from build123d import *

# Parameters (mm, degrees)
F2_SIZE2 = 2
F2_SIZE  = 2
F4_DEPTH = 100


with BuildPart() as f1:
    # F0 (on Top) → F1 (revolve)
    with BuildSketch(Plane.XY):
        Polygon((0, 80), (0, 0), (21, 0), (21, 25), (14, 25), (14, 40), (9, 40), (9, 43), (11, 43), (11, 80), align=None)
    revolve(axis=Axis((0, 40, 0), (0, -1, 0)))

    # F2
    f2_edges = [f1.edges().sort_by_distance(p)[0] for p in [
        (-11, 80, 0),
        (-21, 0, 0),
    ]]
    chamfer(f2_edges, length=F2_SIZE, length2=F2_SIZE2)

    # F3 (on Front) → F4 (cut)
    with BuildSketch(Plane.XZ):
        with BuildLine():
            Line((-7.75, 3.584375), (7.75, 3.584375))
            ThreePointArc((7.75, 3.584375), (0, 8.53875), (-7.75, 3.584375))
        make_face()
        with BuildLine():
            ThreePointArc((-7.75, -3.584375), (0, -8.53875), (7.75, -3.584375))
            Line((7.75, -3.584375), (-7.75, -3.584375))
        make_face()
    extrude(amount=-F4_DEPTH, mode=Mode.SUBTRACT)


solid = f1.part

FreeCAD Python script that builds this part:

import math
import FreeCAD as App
import Part
import Sketcher

V = App.Vector
Q = App.Units.Quantity


def edges_at(feature, points):
    """Names of the edges that pass closest to the given points."""
    edges = feature.Shape.Edges
    near = lambda p: min(range(len(edges)), key=lambda i: edges[i].distToShape(Part.Vertex(*p))[0])
    return sorted({f"Edge{near(p) + 1}" for p in points})

doc = App.newDocument("Part")
body = doc.addObject("PartDesign::Body", "Body")

# Sketch on XY plane
sketch1 = body.newObject("Sketcher::SketchObject", "Sketch")
sketch1.AttachmentSupport = (doc.getObject("XY_Plane"), [""])
sketch1.MapMode = "FlatFace"
sketch1.addGeometry([
    Part.LineSegment(V(0, 80, 0), V(0, 0, 0)),  # 0
    Part.LineSegment(V(0, 0, 0), V(21, 0, 0)),  # 1
    Part.LineSegment(V(21, 0, 0), V(21, 25, 0)),  # 2
    Part.LineSegment(V(21, 25, 0), V(14, 25, 0)),  # 3
    Part.LineSegment(V(14, 25, 0), V(14, 40, 0)),  # 4
    Part.LineSegment(V(14, 40, 0), V(9, 40, 0)),  # 5
    Part.LineSegment(V(9, 40, 0), V(9, 43, 0)),  # 6
    Part.LineSegment(V(9, 43, 0), V(11, 43, 0)),  # 7
    Part.LineSegment(V(11, 43, 0), V(11, 80, 0)),  # 8
    Part.LineSegment(V(11, 80, 0), V(0, 80, 0)),  # 9
], False)
sketch1.addConstraint([
    Sketcher.Constraint("Coincident", 0, 2, 1, 1),
    Sketcher.Constraint("Coincident", 1, 2, 2, 1),
    Sketcher.Constraint("Coincident", 2, 2, 3, 1),
    Sketcher.Constraint("Coincident", 3, 2, 4, 1),
    Sketcher.Constraint("Coincident", 4, 2, 5, 1),
    Sketcher.Constraint("Coincident", 5, 2, 6, 1),
    Sketcher.Constraint("Coincident", 6, 2, 7, 1),
    Sketcher.Constraint("Coincident", 7, 2, 8, 1),
    Sketcher.Constraint("Coincident", 8, 2, 9, 1),
    Sketcher.Constraint("Coincident", 9, 2, 0, 1),
    Sketcher.Constraint("Vertical", 0),
    Sketcher.Constraint("Horizontal", 1),
    Sketcher.Constraint("Vertical", 2),
    Sketcher.Constraint("Horizontal", 3),
    Sketcher.Constraint("Vertical", 4),
    Sketcher.Constraint("Horizontal", 5),
    Sketcher.Constraint("Vertical", 6),
    Sketcher.Constraint("Horizontal", 7),
    Sketcher.Constraint("Vertical", 8),
    Sketcher.Constraint("Horizontal", 9),
    Sketcher.Constraint("Coincident", 0, 2, -1, 1),
    Sketcher.Constraint("DistanceX", 1, 1, 1, 2, Q("21 mm")),
    Sketcher.Constraint("DistanceX", 3, 2, 3, 1, Q("7 mm")),
    Sketcher.Constraint("DistanceX", 5, 2, 5, 1, Q("5 mm")),
    Sketcher.Constraint("DistanceX", 7, 1, 7, 2, Q("2 mm")),
    Sketcher.Constraint("DistanceY", 0, 2, 0, 1, Q("80 mm")),
    Sketcher.Constraint("DistanceY", 2, 1, 2, 2, Q("25 mm")),
    Sketcher.Constraint("DistanceY", 4, 1, 4, 2, Q("15 mm")),
    Sketcher.Constraint("DistanceY", 6, 1, 6, 2, Q("3 mm")),
])
revolution = body.newObject("PartDesign::Revolution", "Revolution")
revolution.Profile = sketch1
revolution.ReferenceAxis = (sketch1, ["V_Axis"])
revolution.Angle = 360
doc.recompute()

chamfer = body.newObject("PartDesign::Chamfer", "Chamfer")
chamfer.Base = (revolution, edges_at(revolution, [(-11, 80, 0), (-21, 0, 0)]))
chamfer.ChamferType = "Two distances"
chamfer.Size = 2
chamfer.Size2 = 2

# Sketch on XZ plane
sketch2 = body.newObject("Sketcher::SketchObject", "Sketch001")
sketch2.AttachmentSupport = (doc.getObject("XZ_Plane"), [""])
sketch2.MapMode = "FlatFace"
sketch2.addGeometry([
    Part.LineSegment(V(-7.75, 3.584375, 0), V(7.75, 3.584375, 0)),
    Part.ArcOfCircle(Part.Circle(V(0, 0.000001, 0), V(0, 0, 1), 8.538749), math.radians(24.820537), math.radians(155.179463)),
    Part.ArcOfCircle(Part.Circle(V(0, -0.000001, 0), V(0, 0, 1), 8.538749), math.radians(-155.179463), math.radians(-24.820537)),
    Part.LineSegment(V(7.75, -3.584375, 0), V(-7.75, -3.584375, 0)),
], False)
sketch2.addConstraint([
    Sketcher.Constraint("Coincident", 0, 1, 1, 2),
    Sketcher.Constraint("Coincident", 1, 1, 0, 2),
    Sketcher.Constraint("Coincident", 2, 1, 3, 2),
    Sketcher.Constraint("Coincident", 3, 1, 2, 2),
    Sketcher.Constraint("Horizontal", 0),
    Sketcher.Constraint("Horizontal", 3),
    Sketcher.Constraint("Coincident", 1, 3, -1, 1),
    Sketcher.Constraint("Coincident", 2, 3, -1, 1),
    Sketcher.Constraint("Equal", 1, 2),
    Sketcher.Constraint("Vertical", 0, 1, 2, 1),
    Sketcher.Constraint("DistanceX", 0, 1, 0, 2, Q("15.5 mm")),
    Sketcher.Constraint("Radius", 1, Q("8.538749 mm")),
])
pocket1 = body.newObject("PartDesign::Pocket", "Pocket")
pocket1.Profile = sketch2
pocket1.Length = 100

doc.recompute()
